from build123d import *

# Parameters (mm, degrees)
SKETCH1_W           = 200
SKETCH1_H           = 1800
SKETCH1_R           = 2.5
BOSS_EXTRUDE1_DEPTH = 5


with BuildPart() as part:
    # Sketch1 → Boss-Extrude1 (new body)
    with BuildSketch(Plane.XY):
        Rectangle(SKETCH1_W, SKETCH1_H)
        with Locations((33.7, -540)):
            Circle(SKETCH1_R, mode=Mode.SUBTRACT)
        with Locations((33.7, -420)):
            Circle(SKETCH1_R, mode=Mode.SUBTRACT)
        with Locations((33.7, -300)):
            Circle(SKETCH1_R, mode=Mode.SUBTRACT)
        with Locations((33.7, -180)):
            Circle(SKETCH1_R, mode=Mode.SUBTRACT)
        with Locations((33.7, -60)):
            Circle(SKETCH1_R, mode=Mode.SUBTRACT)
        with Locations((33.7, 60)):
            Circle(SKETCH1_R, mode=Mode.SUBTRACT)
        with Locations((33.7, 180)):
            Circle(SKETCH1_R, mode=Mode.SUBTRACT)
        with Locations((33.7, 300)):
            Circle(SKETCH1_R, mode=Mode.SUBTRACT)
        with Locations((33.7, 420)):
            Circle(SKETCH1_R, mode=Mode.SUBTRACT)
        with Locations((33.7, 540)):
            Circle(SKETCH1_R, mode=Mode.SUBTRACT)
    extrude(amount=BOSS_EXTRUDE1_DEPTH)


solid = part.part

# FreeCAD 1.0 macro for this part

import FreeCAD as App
import Part
import Sketcher
from FreeCAD import Vector
Q = App.Units.Quantity


def add_polygon(sketch, points):
    """Adds a closed chain of lines whose ends are joined by coincident constraints."""
    first, n = sketch.GeometryCount, len(points)
    for a, b in zip(points, points[1:] + points[:1]):
        sketch.addGeometry(Part.LineSegment(App.Vector(*a, 0), App.Vector(*b, 0)), False)
    for i in range(n):
        sketch.addConstraint(Sketcher.Constraint("Coincident", first + i, 2, first + (i + 1) % n, 1))

doc = App.newDocument("Part")
body = doc.addObject("PartDesign::Body", "Body")

# Sketch on XY plane
sketch1 = body.newObject("Sketcher::SketchObject", "Sketch")
sketch1.AttachmentSupport = (doc.getObject("XY_Plane"), [""])
sketch1.MapMode = "FlatFace"
add_polygon(sketch1, [(-100, 900), (-100, -900), (100, -900), (100, 900)])  # lines 0-3
sketch1.addGeometry(Part.Circle(Vector(33.7, -540, 0), Vector(0, 0, 1), 2.5), False)  # 4
sketch1.addGeometry(Part.Circle(Vector(33.7, -420, 0), Vector(0, 0, 1), 2.5), False)  # 5
sketch1.addGeometry(Part.Circle(Vector(33.7, -300, 0), Vector(0, 0, 1), 2.5), False)  # 6
sketch1.addGeometry(Part.Circle(Vector(33.7, -180, 0), Vector(0, 0, 1), 2.5), False)  # 7
sketch1.addGeometry(Part.Circle(Vector(33.7, -60, 0), Vector(0, 0, 1), 2.5), False)  # 8
sketch1.addGeometry(Part.Circle(Vector(33.7, 60, 0), Vector(0, 0, 1), 2.5), False)  # 9
sketch1.addGeometry(Part.Circle(Vector(33.7, 180, 0), Vector(0, 0, 1), 2.5), False)  # 10
sketch1.addGeometry(Part.Circle(Vector(33.7, 300, 0), Vector(0, 0, 1), 2.5), False)  # 11
sketch1.addGeometry(Part.Circle(Vector(33.7, 420, 0), Vector(0, 0, 1), 2.5), False)  # 12
sketch1.addGeometry(Part.Circle(Vector(33.7, 540, 0), Vector(0, 0, 1), 2.5), False)  # 13
sketch1.addConstraint([
    Sketcher.Constraint("Vertical", 0),
    Sketcher.Constraint("Horizontal", 1),
    Sketcher.Constraint("Vertical", 2),
    Sketcher.Constraint("Horizontal", 3),
    Sketcher.Constraint("Equal", 4, 5),
    Sketcher.Constraint("Equal", 5, 6),
    Sketcher.Constraint("Equal", 6, 7),
    Sketcher.Constraint("Equal", 7, 8),
    Sketcher.Constraint("Equal", 8, 9),
    Sketcher.Constraint("Equal", 9, 10),
    Sketcher.Constraint("Equal", 10, 11),
    Sketcher.Constraint("Equal", 11, 12),
    Sketcher.Constraint("Equal", 12, 13),
    Sketcher.Constraint("Symmetric", 0, 2, 2, 2, -1, 1),
    Sketcher.Constraint("Symmetric", 8, 3, 9, 3, -1),
    Sketcher.Constraint("Symmetric", 7, 3, 10, 3, -1),
    Sketcher.Constraint("Symmetric", 6, 3, 11, 3, -1),
    Sketcher.Constraint("Symmetric", 5, 3, 12, 3, -1),
    Sketcher.Constraint("Symmetric", 4, 3, 13, 3, -1),
    Sketcher.Constraint("Vertical", 4, 3, 5, 3),
    Sketcher.Constraint("Vertical", 5, 3, 6, 3),
    Sketcher.Constraint("Vertical", 6, 3, 7, 3),
    Sketcher.Constraint("Vertical", 7, 3, 8, 3),
    Sketcher.Constraint("Diameter", 4, Q("5 mm")),
    Sketcher.Constraint("DistanceX", 1, 1, 1, 2, Q("200 mm")),
    Sketcher.Constraint("DistanceY", 0, 2, 0, 1, Q("1800 mm")),
    Sketcher.Constraint("DistanceY", 4, 3, -1, 1, Q("540 mm")),
    Sketcher.Constraint("DistanceY", 5, 3, -1, 1, Q("420 mm")),
    Sketcher.Constraint("DistanceY", 6, 3, -1, 1, Q("300 mm")),
    Sketcher.Constraint("DistanceY", 7, 3, -1, 1, Q("180 mm")),
    Sketcher.Constraint("DistanceY", 8, 3, -1, 1, Q("60 mm")),
    Sketcher.Constraint("DistanceX", -1, 1, 4, 3, Q("33.7 mm")),
])
pad1 = body.newObject("PartDesign::Pad", "Pad")
pad1.Profile = sketch1
pad1.Length = 5

doc.recompute()
